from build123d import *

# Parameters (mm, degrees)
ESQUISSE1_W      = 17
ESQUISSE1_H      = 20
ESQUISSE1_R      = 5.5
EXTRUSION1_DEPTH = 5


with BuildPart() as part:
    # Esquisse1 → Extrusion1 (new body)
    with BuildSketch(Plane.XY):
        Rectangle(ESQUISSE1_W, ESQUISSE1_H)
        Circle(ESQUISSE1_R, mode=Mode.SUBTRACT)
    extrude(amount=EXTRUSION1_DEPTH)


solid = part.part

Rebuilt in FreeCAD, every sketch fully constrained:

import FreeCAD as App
import Part
import Sketcher

V = App.Vector
Q = App.Units.Quantity


def add_polygon(sketch, points):
    """Adds a closed chain of lines whose ends are joined by coincident constraints."""
    first, n = sketch.GeometryCount, len(points)
    for a, b in zip(points, points[1:] + points[:1]):
        sketch.addGeometry(Part.LineSegment(App.Vector(*a, 0), App.Vector(*b, 0)), False)
    for i in range(n):
        sketch.addConstraint(Sketcher.Constraint("Coincident", first + i, 2, first + (i + 1) % n, 1))

doc = App.newDocument("Part")
body = doc.addObject("PartDesign::Body", "Body")

# Sketch on XY plane
sketch1 = doc.addObject("Sketcher::SketchObject", "Sketch")
body.addObject(sketch1)
sketch1.AttachmentSupport = (doc.XY_Plane, [""])
sketch1.MapMode = "FlatFace"
add_polygon(sketch1, [(-8, 10), (-8, -10), (8, -10), (8, 10)])  # lines 0-3
sketch1.addGeometry(Part.Circle(V(0, 0, 0), V(0, 0, 1), 6), False)  # 4
sketch1.addConstraint([
    Sketcher.Constraint("Vertical", 0),
    Sketcher.Constraint("Horizontal", 1),
    Sketcher.Constraint("Vertical", 2),
    Sketcher.Constraint("Horizontal", 3),
    Sketcher.Constraint("Coincident", 4, 3, -1, 1),
    Sketcher.Constraint("Symmetric", 0, 2, 2, 2, -1, 1),
    Sketcher.Constraint("Diameter", 4, Q("11 mm")),
    Sketcher.Constraint("DistanceX", 1, 1, 1, 2, Q("17 mm")),
    Sketcher.Constraint("DistanceY", 0, 2, 0, 1, Q("20 mm")),
])
pad1 = doc.addObject("PartDesign::Pad", "Pad")
body.addObject(pad1)
pad1.Profile = sketch1
pad1.Length = 5

doc.recompute()
